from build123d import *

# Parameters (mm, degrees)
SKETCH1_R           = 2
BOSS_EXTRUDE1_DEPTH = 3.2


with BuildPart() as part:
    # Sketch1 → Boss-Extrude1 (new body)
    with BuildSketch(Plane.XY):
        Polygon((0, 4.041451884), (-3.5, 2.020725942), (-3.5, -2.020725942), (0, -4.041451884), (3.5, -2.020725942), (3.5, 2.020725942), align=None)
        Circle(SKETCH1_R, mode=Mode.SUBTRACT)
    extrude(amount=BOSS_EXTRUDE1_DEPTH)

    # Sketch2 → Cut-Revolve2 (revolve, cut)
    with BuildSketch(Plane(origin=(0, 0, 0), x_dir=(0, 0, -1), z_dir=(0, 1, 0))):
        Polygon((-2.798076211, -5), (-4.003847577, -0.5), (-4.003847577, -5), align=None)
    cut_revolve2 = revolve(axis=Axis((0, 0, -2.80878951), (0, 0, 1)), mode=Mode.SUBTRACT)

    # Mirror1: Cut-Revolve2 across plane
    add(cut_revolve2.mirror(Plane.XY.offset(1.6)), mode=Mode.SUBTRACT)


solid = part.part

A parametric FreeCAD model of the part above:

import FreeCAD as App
import Part
import Sketcher
from FreeCAD import Vector
Q = App.Units.Quantity


def add_polygon(sketch, points):
    """Adds a closed chain of lines whose ends are joined by coincident constraints."""
    first, n = sketch.GeometryCount, len(points)
    for a, b in zip(points, points[1:] + points[:1]):
        sketch.addGeometry(Part.LineSegment(App.Vector(*a, 0), App.Vector(*b, 0)), False)
    for i in range(n):
        sketch.addConstraint(Sketcher.Constraint("Coincident", first + i, 2, first + (i + 1) % n, 1))

doc = App.newDocument("Part")
body = doc.addObject("PartDesign::Body", "Body")

# Sketch on XY plane
sketch1 = doc.addObject("Sketcher::SketchObject", "Sketch")
body.addObject(sketch1)
sketch1.AttachmentSupport = (doc.XY_Plane, [""])
sketch1.MapMode = "FlatFace"
add_polygon(sketch1, [(0, 4), (-3.5, 2), (-3.5, -2), (0, -4), (3.5, -2), (3.5, 2)])  # lines 0-5
sketch1.addGeometry(Part.Circle(Vector(0, 0, 0), Vector(0, 0, 1), 2), False)  # 6
sketch1.addConstraint([
    Sketcher.Constraint("Vertical", 1),
    Sketcher.Constraint("Vertical", 4),
    Sketcher.Constraint("Coincident", 6, 3, -1, 1),
    Sketcher.Constraint("Symmetric", 0, 2, 3, 2, -1, 1),
    Sketcher.Constraint("Symmetric", 2, 2, 5, 2, -1, 1),
    Sketcher.Constraint("PointOnObject", 2, 2, -2),
    Sketcher.Constraint("Parallel", 2, 5),
    Sketcher.Constraint("Horizontal", 1, 2, 3, 2),
    Sketcher.Constraint("Diameter", 6, Q("4 mm")),
    Sketcher.Constraint("Angle", 0, Q("-150 deg")),
    Sketcher.Constraint("DistanceX", 1, 2, 3, 2, Q("7 mm")),
    Sketcher.Constraint("DistanceY", 1, 2, 1, 1, Q("4.041452 mm")),
])
pad1 = doc.addObject("PartDesign::Pad", "Pad")
body.addObject(pad1)
pad1.Profile = sketch1
pad1.Length = 3.2

# Sketch on XZ plane
sketch2 = doc.addObject("Sketcher::SketchObject", "Sketch001")
body.addObject(sketch2)
sketch2.AttachmentSupport = (doc.XZ_Plane, [""])
sketch2.MapMode = "FlatFace"
add_polygon(sketch2, [(5, 2.8), (0.5, 4), (5, 4)])  # lines 0-2
sketch2.addConstraint([
    Sketcher.Constraint("Horizontal", 1),
    Sketcher.Constraint("Vertical", 2),
    Sketcher.Constraint("Angle", 0, Q("165 deg")),
    Sketcher.Constraint("DistanceX", 1, 1, 1, 2, Q("4.5 mm")),
    Sketcher.Constraint("DistanceX", -1, 1, 1, 2, Q("5 mm")),
    Sketcher.Constraint("DistanceY", -1, 1, 0, 2, Q("4.003848 mm")),
])
groove = doc.addObject("PartDesign::Groove", "Groove")
body.addObject(groove)
groove.Profile = sketch2
groove.ReferenceAxis = (sketch2, ["V_Axis"])
groove.Angle = 360
doc.recompute()

datumplane = doc.addObject("PartDesign::Plane", "DatumPlane")
body.addObject(datumplane)
datumplane.AttachmentSupport = (doc.XY_Plane, [""])
datumplane.MapMode = "FlatFace"
datumplane.AttachmentOffset = App.Placement(Vector(0, 0, 1.6), App.Rotation())
mirrored = doc.addObject("PartDesign::Mirrored", "Mirrored")
body.addObject(mirrored)
mirrored.Originals = [groove]
mirrored.MirrorPlane = (datumplane, [""])
body.Tip = mirrored

doc.recompute()
